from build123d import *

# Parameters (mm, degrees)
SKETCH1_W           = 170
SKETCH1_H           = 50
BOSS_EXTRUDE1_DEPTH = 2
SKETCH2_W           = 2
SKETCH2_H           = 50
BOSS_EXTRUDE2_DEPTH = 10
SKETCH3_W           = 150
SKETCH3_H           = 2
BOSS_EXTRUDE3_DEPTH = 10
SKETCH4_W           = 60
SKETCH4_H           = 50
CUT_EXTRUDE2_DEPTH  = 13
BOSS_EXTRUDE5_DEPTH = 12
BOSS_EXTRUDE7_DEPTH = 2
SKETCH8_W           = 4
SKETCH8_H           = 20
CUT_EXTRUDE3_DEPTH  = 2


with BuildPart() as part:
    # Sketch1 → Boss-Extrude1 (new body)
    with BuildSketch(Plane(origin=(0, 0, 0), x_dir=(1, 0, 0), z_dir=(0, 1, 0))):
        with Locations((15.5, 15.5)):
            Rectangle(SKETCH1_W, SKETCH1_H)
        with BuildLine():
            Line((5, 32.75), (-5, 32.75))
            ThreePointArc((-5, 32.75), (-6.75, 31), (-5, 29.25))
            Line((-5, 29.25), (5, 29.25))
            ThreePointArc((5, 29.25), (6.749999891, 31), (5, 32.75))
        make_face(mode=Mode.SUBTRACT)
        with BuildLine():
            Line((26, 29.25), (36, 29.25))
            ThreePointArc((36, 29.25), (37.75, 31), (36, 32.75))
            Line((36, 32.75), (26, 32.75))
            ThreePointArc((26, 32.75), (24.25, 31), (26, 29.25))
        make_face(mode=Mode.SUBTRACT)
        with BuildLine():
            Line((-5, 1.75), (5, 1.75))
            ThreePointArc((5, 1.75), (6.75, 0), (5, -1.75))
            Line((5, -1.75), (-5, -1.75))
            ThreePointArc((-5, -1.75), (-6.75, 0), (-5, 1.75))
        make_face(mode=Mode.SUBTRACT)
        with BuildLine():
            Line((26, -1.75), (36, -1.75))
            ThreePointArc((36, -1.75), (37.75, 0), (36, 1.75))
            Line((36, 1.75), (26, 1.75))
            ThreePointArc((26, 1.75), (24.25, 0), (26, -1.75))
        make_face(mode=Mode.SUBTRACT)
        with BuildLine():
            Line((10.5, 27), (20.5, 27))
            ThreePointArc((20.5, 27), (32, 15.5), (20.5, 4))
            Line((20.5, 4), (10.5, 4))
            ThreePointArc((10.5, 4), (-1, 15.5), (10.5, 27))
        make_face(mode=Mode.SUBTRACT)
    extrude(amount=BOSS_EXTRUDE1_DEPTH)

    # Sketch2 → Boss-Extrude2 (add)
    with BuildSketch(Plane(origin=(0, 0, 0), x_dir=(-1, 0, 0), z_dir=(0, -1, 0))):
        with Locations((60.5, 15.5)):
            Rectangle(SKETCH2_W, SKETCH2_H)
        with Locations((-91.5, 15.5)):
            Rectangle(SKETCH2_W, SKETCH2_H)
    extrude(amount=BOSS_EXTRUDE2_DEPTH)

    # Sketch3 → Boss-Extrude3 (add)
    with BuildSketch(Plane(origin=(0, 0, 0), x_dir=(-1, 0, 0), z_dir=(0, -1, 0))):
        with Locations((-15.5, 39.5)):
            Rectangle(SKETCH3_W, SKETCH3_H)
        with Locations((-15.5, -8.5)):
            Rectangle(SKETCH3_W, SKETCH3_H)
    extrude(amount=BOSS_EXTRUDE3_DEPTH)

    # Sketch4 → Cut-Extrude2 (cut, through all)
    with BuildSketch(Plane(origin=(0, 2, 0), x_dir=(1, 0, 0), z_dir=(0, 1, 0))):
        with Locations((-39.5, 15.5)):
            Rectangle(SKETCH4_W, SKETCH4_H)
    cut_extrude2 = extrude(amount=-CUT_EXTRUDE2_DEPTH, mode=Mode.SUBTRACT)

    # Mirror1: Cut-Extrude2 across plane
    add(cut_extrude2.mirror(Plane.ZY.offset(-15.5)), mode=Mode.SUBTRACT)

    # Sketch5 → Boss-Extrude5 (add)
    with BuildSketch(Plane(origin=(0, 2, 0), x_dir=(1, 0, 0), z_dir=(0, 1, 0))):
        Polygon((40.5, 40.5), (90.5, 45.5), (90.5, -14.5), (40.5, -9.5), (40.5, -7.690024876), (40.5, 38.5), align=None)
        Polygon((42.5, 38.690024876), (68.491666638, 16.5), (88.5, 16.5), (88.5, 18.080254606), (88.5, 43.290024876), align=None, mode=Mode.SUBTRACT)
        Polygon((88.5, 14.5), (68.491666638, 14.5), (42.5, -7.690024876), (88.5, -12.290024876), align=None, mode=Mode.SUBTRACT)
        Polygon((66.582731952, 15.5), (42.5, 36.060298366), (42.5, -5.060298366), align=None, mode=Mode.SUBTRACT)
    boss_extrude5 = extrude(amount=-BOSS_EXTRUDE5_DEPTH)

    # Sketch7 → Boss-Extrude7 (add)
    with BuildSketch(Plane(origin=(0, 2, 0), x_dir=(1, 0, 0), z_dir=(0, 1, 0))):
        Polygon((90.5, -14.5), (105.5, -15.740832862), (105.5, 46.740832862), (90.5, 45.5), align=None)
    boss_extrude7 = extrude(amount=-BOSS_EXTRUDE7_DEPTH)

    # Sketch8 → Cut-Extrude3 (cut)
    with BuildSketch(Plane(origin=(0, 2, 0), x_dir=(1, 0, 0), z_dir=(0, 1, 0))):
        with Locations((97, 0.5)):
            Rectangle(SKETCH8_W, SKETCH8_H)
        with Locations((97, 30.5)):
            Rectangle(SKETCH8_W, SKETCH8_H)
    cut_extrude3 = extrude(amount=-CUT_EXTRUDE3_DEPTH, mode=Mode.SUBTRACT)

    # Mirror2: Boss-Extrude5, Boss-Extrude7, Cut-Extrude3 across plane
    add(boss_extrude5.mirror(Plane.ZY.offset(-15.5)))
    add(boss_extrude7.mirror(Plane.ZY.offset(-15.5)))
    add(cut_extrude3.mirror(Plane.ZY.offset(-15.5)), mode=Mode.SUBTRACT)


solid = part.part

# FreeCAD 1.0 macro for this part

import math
import FreeCAD as App
import Part
import Sketcher
from FreeCAD import Vector

doc = App.newDocument("Part")
body = doc.addObject("PartDesign::Body", "Body")

# Sketch on XZ plane
sketch1 = doc.addObject("Sketcher::SketchObject", "Sketch")
body.addObject(sketch1)
sketch1.AttachmentSupport = (doc.XZ_Plane, [""])
sketch1.MapMode = "FlatFace"
sketch1.addGeometry([
    Part.LineSegment(Vector(-69.5, -40.5, 0), Vector(-69.5, 9.5, 0)),  # 0
    Part.LineSegment(Vector(-69.5, 9.5, 0), Vector(100.5, 9.5, 0)),  # 1
    Part.LineSegment(Vector(100.5, 9.5, 0), Vector(100.5, -40.5, 0)),  # 2
    Part.LineSegment(Vector(100.5, -40.5, 0), Vector(-69.5, -40.5, 0)),  # 3
    Part.ArcOfCircle(Part.Circle(Vector(-5, 0, 0), Vector(0, 0, 1), 1.8), math.radians(90), math.radians(270)),  # 4
    Part.LineSegment(Vector(-5, -1.8, 0), Vector(5, -1.8, 0)),  # 5
    Part.ArcOfCircle(Part.Circle(Vector(5, 0, 0), Vector(0, 0, 1), 1.8), math.radians(-90), math.radians(90)),  # 6
    Part.LineSegment(Vector(5, 1.8, 0), Vector(-5, 1.8, 0)),  # 7
    Part.LineSegment(Vector(36, 1.8, 0), Vector(26, 1.8, 0)),  # 8
    Part.ArcOfCircle(Part.Circle(Vector(26, 0, 0), Vector(0, 0, 1), 1.8), math.radians(90), math.radians(270)),  # 9
    Part.LineSegment(Vector(26, -1.8, 0), Vector(36, -1.8, 0)),  # 10
    Part.ArcOfCircle(Part.Circle(Vector(36, 0, 0), Vector(0, 0, 1), 1.8), math.radians(-90), math.radians(90)),  # 11
    Part.LineSegment(Vector(-5, -32.8, 0), Vector(5, -32.8, 0)),  # 12
    Part.ArcOfCircle(Part.Circle(Vector(5, -31, 0), Vector(0, 0, 1), 1.8), math.radians(-90), math.radians(90)),  # 13
    Part.LineSegment(Vector(5, -29.2, 0), Vector(-5, -29.2, 0)),  # 14
    Part.ArcOfCircle(Part.Circle(Vector(-5, -31, 0), Vector(0, 0, 1), 1.8), math.radians(90), math.radians(270)),  # 15
    Part.ArcOfCircle(Part.Circle(Vector(10.5, -15.5, 0), Vector(0, 0, 1), 11.5), math.radians(90), math.radians(270)),  # 16
    Part.LineSegment(Vector(10.5, -27, 0), Vector(20.5, -27, 0)),  # 17
    Part.ArcOfCircle(Part.Circle(Vector(20.5, -15.5, 0), Vector(0, 0, 1), 11.5), math.radians(-90), math.radians(90)),  # 18
    Part.LineSegment(Vector(20.5, -4, 0), Vector(10.5, -4, 0)),  # 19
    Part.LineSegment(Vector(36, -29.2, 0), Vector(26, -29.2, 0)),  # 20
    Part.ArcOfCircle(Part.Circle(Vector(26, -31, 0), Vector(0, 0, 1), 1.8), math.radians(90), math.radians(270)),  # 21
    Part.LineSegment(Vector(26, -32.8, 0), Vector(36, -32.8, 0)),  # 22
    Part.ArcOfCircle(Part.Circle(Vector(36, -31, 0), Vector(0, 0, 1), 1.8), math.radians(-90), math.radians(90)),  # 23
], False)
sketch1.addConstraint([
    Sketcher.Constraint("Coincident", 0, 2, 1, 1),
    Sketcher.Constraint("Coincident", 1, 2, 2, 1),
    Sketcher.Constraint("Coincident", 2, 2, 3, 1),
    Sketcher.Constraint("Coincident", 3, 2, 0, 1),
    Sketcher.Constraint("Tangent", 4, 2, 5, 1),
    Sketcher.Constraint("Tangent", 5, 2, 6, 1),
    Sketcher.Constraint("Tangent", 6, 2, 7, 1),
    Sketcher.Constraint("Tangent", 7, 2, 4, 1),
    Sketcher.Constraint("Tangent", 8, 2, 9, 1),
    Sketcher.Constraint("Tangent", 9, 2, 10, 1),
    Sketcher.Constraint("Tangent", 10, 2, 11, 1),
    Sketcher.Constraint("Tangent", 11, 2, 8, 1),
    Sketcher.Constraint("Tangent", 12, 2, 13, 1),
    Sketcher.Constraint("Tangent", 13, 2, 14, 1),
    Sketcher.Constraint("Tangent", 14, 2, 15, 1),
    Sketcher.Constraint("Tangent", 15, 2, 12, 1),
    Sketcher.Constraint("Tangent", 16, 2, 17, 1),
    Sketcher.Constraint("Tangent", 17, 2, 18, 1),
    Sketcher.Constraint("Tangent", 18, 2, 19, 1),
    Sketcher.Constraint("Tangent", 19, 2, 16, 1),
    Sketcher.Constraint("Tangent", 20, 2, 21, 1),
    Sketcher.Constraint("Tangent", 21, 2, 22, 1),
    Sketcher.Constraint("Tangent", 22, 2, 23, 1),
    Sketcher.Constraint("Tangent", 23, 2, 20, 1),
    Sketcher.Constraint("Vertical", 0),
    Sketcher.Constraint("Horizontal", 1),
    Sketcher.Constraint("Vertical", 2),
    Sketcher.Constraint("Horizontal", 3),
    Sketcher.Constraint("Horizontal", 5),
    Sketcher.Constraint("Horizontal", 7),
    Sketcher.Constraint("Horizontal", 8),
    Sketcher.Constraint("Horizontal", 10),
    Sketcher.Constraint("Horizontal", 12),
    Sketcher.Constraint("Horizontal", 14),
    Sketcher.Constraint("Horizontal", 17),
    Sketcher.Constraint("Horizontal", 19),
    Sketcher.Constraint("Horizontal", 20),
    Sketcher.Constraint("Horizontal", 22),
    Sketcher.Constraint("Equal", 6, 9),
    Sketcher.Constraint("Equal", 11, 13),
    Sketcher.Constraint("Equal", 15, 21),
    Sketcher.Constraint("Symmetric", 4, 3, 6, 3, -1, 1),
    Sketcher.Constraint("PointOnObject", 9, 3, -1),
    Sketcher.Constraint("Horizontal", 15, 3, 21, 3),
    Sketcher.Constraint("Vertical", 6, 3, 13, 3),
    Sketcher.Constraint("Vertical", 4, 3, 15, 3),
    Sketcher.Constraint("Vertical", 9, 3, 21, 3),
    Sketcher.Constraint("Vertical", 11, 3, 23, 3),
    Sketcher.Constraint("Equal", 7, 8),
    Sketcher.Constraint("Equal", 14, 17),
    Sketcher.Constraint("Radius", 16, 11.5),
    Sketcher.Constraint("DistanceX", 1, 1, 1, 2, 170.0),
    Sketcher.Constraint("DistanceX", 5, 1, 5, 2, 10.0),
    Sketcher.Constraint("DistanceY", 0, 1, 0, 2, 50.0),
    Sketcher.Constraint("Radius", 4, 1.75),
    Sketcher.Constraint("DistanceX", -1, 1, 9, 3, 26.0),
    Sketcher.Constraint("DistanceY", 13, 3, -1, 1, 31.0),
    Sketcher.Constraint("DistanceY", 16, 2, -1, 1, 27.0),
    Sketcher.Constraint("DistanceX", 0, 2, 16, 3, 80.0),
    Sketcher.Constraint("DistanceY", 16, 3, 0, 2, 25.0),
    Sketcher.Constraint("DistanceX", -1, 1, 16, 3, 10.5),
])
pad1 = doc.addObject("PartDesign::Pad", "Pad")
body.addObject(pad1)
pad1.Profile = sketch1
pad1.Length = 2
pad1.Reversed = True

# Sketch on XZ plane
sketch2 = doc.addObject("Sketcher::SketchObject", "Sketch001")
body.addObject(sketch2)
sketch2.AttachmentSupport = (doc.XZ_Plane, [""])
sketch2.MapMode = "FlatFace"
sketch2.addGeometry([
    Part.LineSegment(Vector(-59.5, -40.5, 0), Vector(-59.5, 9.5, 0)),  # 0
    Part.LineSegment(Vector(-59.5, 9.5, 0), Vector(-61.5, 9.5, 0)),  # 1
    Part.LineSegment(Vector(-61.5, 9.5, 0), Vector(-61.5, -40.5, 0)),  # 2
    Part.LineSegment(Vector(-61.5, -40.5, 0), Vector(-59.5, -40.5, 0)),  # 3
    Part.LineSegment(Vector(92.5, -40.5, 0), Vector(92.5, 9.5, 0)),  # 4
    Part.LineSegment(Vector(92.5, 9.5, 0), Vector(90.5, 9.5, 0)),  # 5
    Part.LineSegment(Vector(90.5, 9.5, 0), Vector(90.5, -40.5, 0)),  # 6
    Part.LineSegment(Vector(90.5, -40.5, 0), Vector(92.5, -40.5, 0)),  # 7
], False)
sketch2.addConstraint([
    Sketcher.Constraint("Coincident", 0, 2, 1, 1),
    Sketcher.Constraint("Coincident", 1, 2, 2, 1),
    Sketcher.Constraint("Coincident", 2, 2, 3, 1),
    Sketcher.Constraint("Coincident", 3, 2, 0, 1),
    Sketcher.Constraint("Coincident", 4, 2, 5, 1),
    Sketcher.Constraint("Coincident", 5, 2, 6, 1),
    Sketcher.Constraint("Coincident", 6, 2, 7, 1),
    Sketcher.Constraint("Coincident", 7, 2, 4, 1),
    Sketcher.Constraint("Vertical", 0),
    Sketcher.Constraint("Horizontal", 1),
    Sketcher.Constraint("Vertical", 2),
    Sketcher.Constraint("Horizontal", 3),
    Sketcher.Constraint("Vertical", 4),
    Sketcher.Constraint("Horizontal", 5),
    Sketcher.Constraint("Vertical", 6),
    Sketcher.Constraint("Horizontal", 7),
    Sketcher.Constraint("Horizontal", 1, 2, 4, 2),
    Sketcher.Constraint("Horizontal", 3, 2, 6, 2),
    Sketcher.Constraint("Equal", 3, 5),
    Sketcher.Constraint("DistanceX", 1, 2, 1, 1, 2.0),
    Sketcher.Constraint("DistanceY", 0, 1, 0, 2, 50.0),
    Sketcher.Constraint("DistanceX", 0, 2, 4, 2, 152.0),
    Sketcher.Constraint("DistanceX", 0, 2, -1, 1, 59.5),
    Sketcher.Constraint("DistanceY", -1, 1, 0, 2, 9.5),
])
pad2 = doc.addObject("PartDesign::Pad", "Pad001")
body.addObject(pad2)
pad2.Profile = sketch2
pad2.Length = 10

# Sketch on XZ plane
sketch3 = doc.addObject("Sketcher::SketchObject", "Sketch002")
body.addObject(sketch3)
sketch3.AttachmentSupport = (doc.XZ_Plane, [""])
sketch3.MapMode = "FlatFace"
sketch3.addGeometry([
    Part.LineSegment(Vector(90.5, -40.5, 0), Vector(90.5, -38.5, 0)),  # 0
    Part.LineSegment(Vector(90.5, -38.5, 0), Vector(-59.5, -38.5, 0)),  # 1
    Part.LineSegment(Vector(-59.5, -38.5, 0), Vector(-59.5, -40.5, 0)),  # 2
    Part.LineSegment(Vector(-59.5, -40.5, 0), Vector(90.5, -40.5, 0)),  # 3
    Part.LineSegment(Vector(90.5, 7.5, 0), Vector(90.5, 9.5, 0)),  # 4
    Part.LineSegment(Vector(90.5, 9.5, 0), Vector(-59.5, 9.5, 0)),  # 5
    Part.LineSegment(Vector(-59.5, 9.5, 0), Vector(-59.5, 7.5, 0)),  # 6
    Part.LineSegment(Vector(-59.5, 7.5, 0), Vector(90.5, 7.5, 0)),  # 7
], False)
sketch3.addConstraint([
    Sketcher.Constraint("Coincident", 0, 2, 1, 1),
    Sketcher.Constraint("Coincident", 1, 2, 2, 1),
    Sketcher.Constraint("Coincident", 2, 2, 3, 1),
    Sketcher.Constraint("Coincident", 3, 2, 0, 1),
    Sketcher.Constraint("Coincident", 4, 2, 5, 1),
    Sketcher.Constraint("Coincident", 5, 2, 6, 1),
    Sketcher.Constraint("Coincident", 6, 2, 7, 1),
    Sketcher.Constraint("Coincident", 7, 2, 4, 1),
    Sketcher.Constraint("Vertical", 0),
    Sketcher.Constraint("Horizontal", 1),
    Sketcher.Constraint("Vertical", 2),
    Sketcher.Constraint("Horizontal", 3),
    Sketcher.Constraint("Vertical", 4),
    Sketcher.Constraint("Horizontal", 5),
    Sketcher.Constraint("Vertical", 6),
    Sketcher.Constraint("Horizontal", 7),
    Sketcher.Constraint("Vertical", 3, 2, 4, 2),
    Sketcher.Constraint("Vertical", 2, 2, 5, 2),
    Sketcher.Constraint("Equal", 2, 4),
    Sketcher.Constraint("DistanceX", 1, 2, 1, 1, 150.0),
    Sketcher.Constraint("DistanceY", 0, 1, 0, 2, 2.0),
    Sketcher.Constraint("DistanceY", 0, 2, 4, 2, 48.0),
    Sketcher.Constraint("DistanceX", -1, 1, 0, 2, 90.5),
    Sketcher.Constraint("DistanceY", 0, 2, -1, 1, 38.5),
])
pad3 = doc.addObject("PartDesign::Pad", "Pad002")
body.addObject(pad3)
pad3.Profile = sketch3
pad3.Length = 10

# Sketch on XZ plane
sketch4 = doc.addObject("Sketcher::SketchObject", "Sketch003")
body.addObject(sketch4)
sketch4.AttachmentSupport = (doc.XZ_Plane, [""])
sketch4.MapMode = "FlatFace"
sketch4.AttachmentOffset = App.Placement(Vector(0, 0, -2), App.Rotation())
sketch4.addGeometry([
    Part.LineSegment(Vector(-70, -40, 0), Vector(-70, 10, 0)),
    Part.LineSegment(Vector(-70, 10, 0), Vector(-10, 10, 0)),
    Part.LineSegment(Vector(-10, 10, 0), Vector(-10, -40, 0)),
    Part.LineSegment(Vector(-10, -40, 0), Vector(-70, -40, 0)),
], False)
sketch4.addConstraint([
    Sketcher.Constraint("Coincident", 0, 2, 1, 1),
    Sketcher.Constraint("Coincident", 1, 2, 2, 1),
    Sketcher.Constraint("Coincident", 2, 2, 3, 1),
    Sketcher.Constraint("Coincident", 3, 2, 0, 1),
    Sketcher.Constraint("Vertical", 0),
    Sketcher.Constraint("Horizontal", 1),
    Sketcher.Constraint("Vertical", 2),
    Sketcher.Constraint("Horizontal", 3),
    Sketcher.Constraint("DistanceX", 1, 1, 1, 2, 60.0),
    Sketcher.Constraint("DistanceY", 0, 1, 0, 2, 50.0),
    Sketcher.Constraint("DistanceX", 0, 2, -1, 1, 69.5),
    Sketcher.Constraint("DistanceY", -1, 1, 0, 2, 9.5),
])
pocket1 = doc.addObject("PartDesign::Pocket", "Pocket")
body.addObject(pocket1)
pocket1.Profile = sketch4
pocket1.Type = "ThroughAll"
pocket1.Reversed = True
doc.recompute()

datumplane = doc.addObject("PartDesign::Plane", "DatumPlane")
body.addObject(datumplane)
datumplane.AttachmentSupport = (doc.YZ_Plane, [""])
datumplane.MapMode = "FlatFace"
datumplane.AttachmentOffset = App.Placement(Vector(0, 0, 15.5), App.Rotation())
mirrored = doc.addObject("PartDesign::Mirrored", "Mirrored")
body.addObject(mirrored)
mirrored.Originals = [pocket1]
mirrored.MirrorPlane = (datumplane, [""])
body.Tip = mirrored

# Sketch on XZ plane
sketch5 = doc.addObject("Sketcher::SketchObject", "Sketch004")
body.addObject(sketch5)
sketch5.AttachmentSupport = (doc.XZ_Plane, [""])
sketch5.MapMode = "FlatFace"
sketch5.AttachmentOffset = App.Placement(Vector(0, 0, -2), App.Rotation())
sketch5.addGeometry([
    Part.LineSegment(Vector(90, -46, 0), Vector(40, -40, 0)),  # 0
    Part.LineSegment(Vector(40, -40, 0), Vector(40, 10, 0)),  # 1
    Part.LineSegment(Vector(40, 10, 0), Vector(90, 14, 0)),  # 2
    Part.LineSegment(Vector(90, 14, 0), Vector(90, -46, 0)),  # 3
    Part.LineSegment(Vector(88, -14, 0), Vector(88, 12, 0)),  # 4
    Part.LineSegment(Vector(88, 12, 0), Vector(42, 8, 0)),  # 5
    Part.LineSegment(Vector(42, 8, 0), Vector(68, -14, 0)),  # 6
    Part.LineSegment(Vector(68, -14, 0), Vector(88, -14, 0)),  # 7
    Part.LineSegment(Vector(67, -16, 0), Vector(42, 5, 0)),  # 8
    Part.LineSegment(Vector(42, 5, 0), Vector(42, -36, 0)),  # 9
    Part.LineSegment(Vector(42, -36, 0), Vector(67, -16, 0)),  # 10
    Part.LineSegment(Vector(42, -39, 0), Vector(88, -43, 0)),  # 11
    Part.LineSegment(Vector(88, -43, 0), Vector(88, -16, 0)),  # 12
    Part.LineSegment(Vector(88, -16, 0), Vector(68, -16, 0)),  # 13
    Part.LineSegment(Vector(68, -16, 0), Vector(42, -39, 0)),  # 14
], False)
sketch5.addConstraint([
    Sketcher.Constraint("Coincident", 0, 2, 1, 1),
    Sketcher.Constraint("Coincident", 1, 2, 2, 1),
    Sketcher.Constraint("Coincident", 2, 2, 3, 1),
    Sketcher.Constraint("Coincident", 3, 2, 0, 1),
    Sketcher.Constraint("Coincident", 4, 2, 5, 1),
    Sketcher.Constraint("Coincident", 5, 2, 6, 1),
    Sketcher.Constraint("Coincident", 6, 2, 7, 1),
    Sketcher.Constraint("Coincident", 7, 2, 4, 1),
    Sketcher.Constraint("Coincident", 8, 2, 9, 1),
    Sketcher.Constraint("Coincident", 9, 2, 10, 1),
    Sketcher.Constraint("Coincident", 10, 2, 8, 1),
    Sketcher.Constraint("Coincident", 11, 2, 12, 1),
    Sketcher.Constraint("Coincident", 12, 2, 13, 1),
    Sketcher.Constraint("Coincident", 13, 2, 14, 1),
    Sketcher.Constraint("Coincident", 14, 2, 11, 1),
    Sketcher.Constraint("Vertical", 1),
    Sketcher.Constraint("Vertical", 3),
    Sketcher.Constraint("Vertical", 4),
    Sketcher.Constraint("Horizontal", 7),
    Sketcher.Constraint("Vertical", 9),
    Sketcher.Constraint("Vertical", 12),
    Sketcher.Constraint("Horizontal", 13),
    Sketcher.Constraint("Parallel", 2, 5),
    Sketcher.Constraint("Parallel", 6, 8),
    Sketcher.Constraint("Parallel", 0, 11),
    Sketcher.Constraint("Parallel", 10, 14),
    Sketcher.Constraint("Vertical", 5, 2, 8, 2),
    Sketcher.Constraint("Vertical", 7, 2, 11, 2),
    Sketcher.Constraint("Vertical", 6, 2, 13, 2),
    Sketcher.Constraint("Vertical", 9, 2, 14, 2),
    Sketcher.Constraint("Equal", 4, 12),
    Sketcher.Constraint("Equal", 0, 2),
    Sketcher.Constraint("DistanceY", 1, 1, 1, 2, 50.0),
    Sketcher.Constraint("DistanceY", 3, 2, 3, 1, 60.0),
    Sketcher.Constraint("DistanceX", 1, 2, 2, 2, 50.0),
    Sketcher.Constraint("DistanceX", 4, 2, 2, 2, 2.0),
    Sketcher.Constraint("DistanceX", 1, 2, 5, 2, 2.0),
    Sketcher.Constraint("DistanceY", 6, 2, 2, 2, 29.0),
    Sketcher.Constraint("DistanceY", 10, 2, 6, 2, 1.0),
    Sketcher.Constraint("DistanceY", 12, 2, 7, 2, 2.0),
    Sketcher.Constraint("DistanceX", -1, 1, 0, 2, 40.5),
    Sketcher.Constraint("DistanceY", 0, 2, -1, 1, 40.5),
    Sketcher.Constraint("Distance", 8, 31.665499),
    Sketcher.Constraint("DistanceY", -1, 1, 8, 2, 5.060298),
    Sketcher.Constraint("DistanceX", 7, 1, 7, 2, 20.008333),
])
pad4 = doc.addObject("PartDesign::Pad", "Pad003")
body.addObject(pad4)
pad4.Profile = sketch5
pad4.Length = 12

# Sketch on XZ plane
sketch6 = doc.addObject("Sketcher::SketchObject", "Sketch005")
body.addObject(sketch6)
sketch6.AttachmentSupport = (doc.XZ_Plane, [""])
sketch6.MapMode = "FlatFace"
sketch6.AttachmentOffset = App.Placement(Vector(0, 0, -2), App.Rotation())
sketch6.addGeometry([
    Part.LineSegment(Vector(90, 14, 0), Vector(106, 16, 0)),
    Part.LineSegment(Vector(106, 16, 0), Vector(106, -47, 0)),
    Part.LineSegment(Vector(106, -47, 0), Vector(90, -46, 0)),
    Part.LineSegment(Vector(90, -46, 0), Vector(90, 14, 0)),
], False)
sketch6.addConstraint([
    Sketcher.Constraint("Coincident", 0, 2, 1, 1),
    Sketcher.Constraint("Coincident", 1, 2, 2, 1),
    Sketcher.Constraint("Coincident", 2, 2, 3, 1),
    Sketcher.Constraint("Coincident", 3, 2, 0, 1),
    Sketcher.Constraint("Vertical", 1),
    Sketcher.Constraint("Vertical", 3),
    Sketcher.Constraint("Equal", 0, 2),
    Sketcher.Constraint("DistanceY", 3, 1, 3, 2, 60.0),
    Sketcher.Constraint("DistanceX", 2, 2, 1, 2, 15.0),
    Sketcher.Constraint("DistanceX", -1, 1, 0, 2, 105.5),
    Sketcher.Constraint("DistanceY", 2, 2, -1, 1, 45.5),
    Sketcher.Constraint("DistanceY", 1, 2, 1, 1, 62.481666),
])
pad5 = doc.addObject("PartDesign::Pad", "Pad004")
body.addObject(pad5)
pad5.Profile = sketch6
pad5.Length = 2

# Sketch on XZ plane
sketch7 = doc.addObject("Sketcher::SketchObject", "Sketch006")
body.addObject(sketch7)
sketch7.AttachmentSupport = (doc.XZ_Plane, [""])
sketch7.MapMode = "FlatFace"
sketch7.AttachmentOffset = App.Placement(Vector(0, 0, -2), App.Rotation())
sketch7.addGeometry([
    Part.LineSegment(Vector(95, -10.5, 0), Vector(95, 9.5, 0)),  # 0
    Part.LineSegment(Vector(95, 9.5, 0), Vector(99, 9.5, 0)),  # 1
    Part.LineSegment(Vector(99, 9.5, 0), Vector(99, -10.5, 0)),  # 2
    Part.LineSegment(Vector(99, -10.5, 0), Vector(95, -10.5, 0)),  # 3
    Part.LineSegment(Vector(95, -40.5, 0), Vector(95, -20.5, 0)),  # 4
    Part.LineSegment(Vector(95, -20.5, 0), Vector(99, -20.5, 0)),  # 5
    Part.LineSegment(Vector(99, -20.5, 0), Vector(99, -40.5, 0)),  # 6
    Part.LineSegment(Vector(99, -40.5, 0), Vector(95, -40.5, 0)),  # 7
], False)
sketch7.addConstraint([
    Sketcher.Constraint("Coincident", 0, 2, 1, 1),
    Sketcher.Constraint("Coincident", 1, 2, 2, 1),
    Sketcher.Constraint("Coincident", 2, 2, 3, 1),
    Sketcher.Constraint("Coincident", 3, 2, 0, 1),
    Sketcher.Constraint("Coincident", 4, 2, 5, 1),
    Sketcher.Constraint("Coincident", 5, 2, 6, 1),
    Sketcher.Constraint("Coincident", 6, 2, 7, 1),
    Sketcher.Constraint("Coincident", 7, 2, 4, 1),
    Sketcher.Constraint("Vertical", 0),
    Sketcher.Constraint("Horizontal", 1),
    Sketcher.Constraint("Vertical", 2),
    Sketcher.Constraint("Horizontal", 3),
    Sketcher.Constraint("Vertical", 4),
    Sketcher.Constraint("Horizontal", 5),
    Sketcher.Constraint("Vertical", 6),
    Sketcher.Constraint("Horizontal", 7),
    Sketcher.Constraint("Vertical", 3, 2, 4, 2),
    Sketcher.Constraint("Vertical", 2, 2, 5, 2),
    Sketcher.Constraint("Equal", 2, 4),
    Sketcher.Constraint("DistanceX", 1, 1, 1, 2, 4.0),
    Sketcher.Constraint("DistanceY", 0, 1, 0, 2, 20.0),
    Sketcher.Constraint("DistanceX", -1, 1, 0, 2, 95.0),
    Sketcher.Constraint("DistanceY", 4, 2, 3, 2, 10.0),
    Sketcher.Constraint("DistanceY", -1, 1, 0, 2, 9.5),
])
pocket2 = doc.addObject("PartDesign::Pocket", "Pocket001")
body.addObject(pocket2)
pocket2.Profile = sketch7
pocket2.Length = 2
pocket2.Reversed = True
doc.recompute()

datumplane2 = doc.addObject("PartDesign::Plane", "DatumPlane001")
body.addObject(datumplane2)
datumplane2.AttachmentSupport = (doc.YZ_Plane, [""])
datumplane2.MapMode = "FlatFace"
datumplane2.AttachmentOffset = App.Placement(Vector(0, 0, 15.5), App.Rotation())
mirrored2 = doc.addObject("PartDesign::Mirrored", "Mirrored001")
body.addObject(mirrored2)
mirrored2.Originals = [pad4, pad5, pocket2]
mirrored2.MirrorPlane = (datumplane2, [""])
body.Tip = mirrored2

doc.recompute()
